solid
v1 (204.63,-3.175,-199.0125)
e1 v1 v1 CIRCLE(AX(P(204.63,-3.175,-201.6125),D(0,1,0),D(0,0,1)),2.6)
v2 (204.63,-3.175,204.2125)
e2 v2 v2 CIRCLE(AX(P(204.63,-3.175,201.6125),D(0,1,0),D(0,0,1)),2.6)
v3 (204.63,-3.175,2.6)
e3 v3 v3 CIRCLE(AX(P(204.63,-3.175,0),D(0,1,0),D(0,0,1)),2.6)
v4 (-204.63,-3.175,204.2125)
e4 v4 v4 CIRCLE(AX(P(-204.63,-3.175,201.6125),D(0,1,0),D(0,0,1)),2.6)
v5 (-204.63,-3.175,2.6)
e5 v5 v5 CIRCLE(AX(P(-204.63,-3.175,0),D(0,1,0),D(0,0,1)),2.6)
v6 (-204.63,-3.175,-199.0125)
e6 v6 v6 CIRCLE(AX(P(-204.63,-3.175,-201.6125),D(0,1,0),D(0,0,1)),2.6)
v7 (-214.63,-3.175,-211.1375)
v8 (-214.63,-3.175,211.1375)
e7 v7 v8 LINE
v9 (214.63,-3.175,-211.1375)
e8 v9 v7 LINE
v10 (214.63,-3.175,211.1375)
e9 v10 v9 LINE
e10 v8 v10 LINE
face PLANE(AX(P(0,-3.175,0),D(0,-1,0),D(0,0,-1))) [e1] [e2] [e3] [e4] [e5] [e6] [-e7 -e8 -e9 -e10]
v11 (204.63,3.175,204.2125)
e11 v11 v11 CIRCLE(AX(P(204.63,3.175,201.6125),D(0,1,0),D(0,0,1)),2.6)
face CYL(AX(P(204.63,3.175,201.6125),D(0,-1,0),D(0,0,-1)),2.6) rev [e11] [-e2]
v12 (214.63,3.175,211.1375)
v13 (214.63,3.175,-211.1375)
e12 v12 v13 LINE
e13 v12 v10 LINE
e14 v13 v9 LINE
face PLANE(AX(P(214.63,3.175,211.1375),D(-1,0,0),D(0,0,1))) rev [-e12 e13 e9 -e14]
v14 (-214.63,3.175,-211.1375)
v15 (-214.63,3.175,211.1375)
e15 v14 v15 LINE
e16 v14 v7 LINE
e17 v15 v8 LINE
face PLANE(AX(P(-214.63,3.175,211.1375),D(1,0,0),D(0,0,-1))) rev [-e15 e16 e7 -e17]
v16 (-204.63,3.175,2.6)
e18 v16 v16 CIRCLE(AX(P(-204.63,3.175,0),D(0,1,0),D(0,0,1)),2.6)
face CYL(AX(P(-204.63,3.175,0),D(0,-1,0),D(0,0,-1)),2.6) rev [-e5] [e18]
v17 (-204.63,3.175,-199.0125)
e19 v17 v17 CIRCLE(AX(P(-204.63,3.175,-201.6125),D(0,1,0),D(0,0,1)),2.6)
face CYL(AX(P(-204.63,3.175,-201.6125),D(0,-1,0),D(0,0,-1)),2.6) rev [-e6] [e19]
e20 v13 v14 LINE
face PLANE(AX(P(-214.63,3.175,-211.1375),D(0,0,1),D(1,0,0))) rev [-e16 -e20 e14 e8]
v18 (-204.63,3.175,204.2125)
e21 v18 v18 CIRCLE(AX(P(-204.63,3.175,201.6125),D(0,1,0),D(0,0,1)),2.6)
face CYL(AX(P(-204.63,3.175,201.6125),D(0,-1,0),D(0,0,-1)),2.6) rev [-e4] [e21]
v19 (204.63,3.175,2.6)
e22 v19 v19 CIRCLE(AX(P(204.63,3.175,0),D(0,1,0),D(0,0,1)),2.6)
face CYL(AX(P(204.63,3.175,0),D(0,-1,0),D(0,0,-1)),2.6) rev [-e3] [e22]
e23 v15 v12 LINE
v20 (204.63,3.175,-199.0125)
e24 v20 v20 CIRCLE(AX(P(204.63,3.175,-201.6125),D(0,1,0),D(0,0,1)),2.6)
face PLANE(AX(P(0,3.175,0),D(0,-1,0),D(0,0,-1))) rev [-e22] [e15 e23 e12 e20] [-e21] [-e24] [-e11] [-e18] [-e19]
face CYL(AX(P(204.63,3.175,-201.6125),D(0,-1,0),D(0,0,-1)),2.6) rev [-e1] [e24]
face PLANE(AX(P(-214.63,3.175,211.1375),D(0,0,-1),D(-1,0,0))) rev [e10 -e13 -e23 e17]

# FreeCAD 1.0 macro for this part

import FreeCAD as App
import Part
import Sketcher

V = App.Vector
Q = App.Units.Quantity

doc = App.newDocument("Part")
body = doc.addObject("PartDesign::Body", "Body")

# Sketch on XZ plane
sketch1 = doc.addObject("Sketcher::SketchObject", "Sketch")
body.addObject(sketch1)
sketch1.AttachmentSupport = (doc.XZ_Plane, [""])
sketch1.MapMode = "FlatFace"
sketch1.addGeometry([
    Part.LineSegment(V(-214.63, -211.1375, 0), V(-214.63, 211.1375, 0)),  # 0
    Part.LineSegment(V(-214.63, 211.1375, 0), V(214.63, 211.1375, 0)),  # 1
    Part.LineSegment(V(214.63, 211.1375, 0), V(214.63, -211.1375, 0)),  # 2
    Part.LineSegment(V(214.63, -211.1375, 0), V(-214.63, -211.1375, 0)),  # 3
    Part.Circle(V(-204.63, 201.6125, 0), V(0, 0, 1), 2.6),  # 4
    Part.Circle(V(204.63, 201.6125, 0), V(0, 0, 1), 2.6),  # 5
    Part.Circle(V(-204.63, 0, 0), V(0, 0, 1), 2.6),  # 6
    Part.Circle(V(-204.63, -201.6125, 0), V(0, 0, 1), 2.6),  # 7
    Part.Circle(V(204.63, 0, 0), V(0, 0, 1), 2.6),  # 8
    Part.Circle(V(204.63, -201.6125, 0), V(0, 0, 1), 2.6),  # 9
], False)
sketch1.addConstraint([
    Sketcher.Constraint("Coincident", 0, 2, 1, 1),
    Sketcher.Constraint("Coincident", 1, 2, 2, 1),
    Sketcher.Constraint("Coincident", 2, 2, 3, 1),
    Sketcher.Constraint("Coincident", 3, 2, 0, 1),
    Sketcher.Constraint("Vertical", 0),
    Sketcher.Constraint("Horizontal", 1),
    Sketcher.Constraint("Vertical", 2),
    Sketcher.Constraint("Horizontal", 3),
    Sketcher.Constraint("Equal", 4, 5),
    Sketcher.Constraint("Equal", 5, 6),
    Sketcher.Constraint("Equal", 6, 7),
    Sketcher.Constraint("Equal", 7, 8),
    Sketcher.Constraint("Equal", 8, 9),
    Sketcher.Constraint("Symmetric", 5, 3, 7, 3, -1, 1),
    Sketcher.Constraint("Symmetric", 6, 3, 8, 3, -1, 1),
    Sketcher.Constraint("Symmetric", 4, 3, 9, 3, -1, 1),
    Sketcher.Constraint("Symmetric", 0, 2, 2, 2, -1, 1),
    Sketcher.Constraint("Symmetric", 4, 3, 5, 3, -2),
    Sketcher.Constraint("PointOnObject", 6, 3, -1),
    Sketcher.Constraint("Vertical", 4, 3, 6, 3),
    Sketcher.Constraint("DistanceX", 1, 1, 1, 2, Q("16.9 in")),
    Sketcher.Constraint("Diameter", 4, 5.2),
    Sketcher.Constraint("DistanceY", 0, 1, 0, 2, Q("16.625 in")),
    Sketcher.Constraint("DistanceY", 7, 3, 0, 2, Q("16.25 in")),
    Sketcher.Constraint("DistanceX", 4, 3, -1, 1, 204.63),
])
pad1 = doc.addObject("PartDesign::Pad", "Pad")
body.addObject(pad1)
pad1.Profile = sketch1
pad1.Length = Q("0.25 in")
pad1.Midplane = True

doc.recompute()
